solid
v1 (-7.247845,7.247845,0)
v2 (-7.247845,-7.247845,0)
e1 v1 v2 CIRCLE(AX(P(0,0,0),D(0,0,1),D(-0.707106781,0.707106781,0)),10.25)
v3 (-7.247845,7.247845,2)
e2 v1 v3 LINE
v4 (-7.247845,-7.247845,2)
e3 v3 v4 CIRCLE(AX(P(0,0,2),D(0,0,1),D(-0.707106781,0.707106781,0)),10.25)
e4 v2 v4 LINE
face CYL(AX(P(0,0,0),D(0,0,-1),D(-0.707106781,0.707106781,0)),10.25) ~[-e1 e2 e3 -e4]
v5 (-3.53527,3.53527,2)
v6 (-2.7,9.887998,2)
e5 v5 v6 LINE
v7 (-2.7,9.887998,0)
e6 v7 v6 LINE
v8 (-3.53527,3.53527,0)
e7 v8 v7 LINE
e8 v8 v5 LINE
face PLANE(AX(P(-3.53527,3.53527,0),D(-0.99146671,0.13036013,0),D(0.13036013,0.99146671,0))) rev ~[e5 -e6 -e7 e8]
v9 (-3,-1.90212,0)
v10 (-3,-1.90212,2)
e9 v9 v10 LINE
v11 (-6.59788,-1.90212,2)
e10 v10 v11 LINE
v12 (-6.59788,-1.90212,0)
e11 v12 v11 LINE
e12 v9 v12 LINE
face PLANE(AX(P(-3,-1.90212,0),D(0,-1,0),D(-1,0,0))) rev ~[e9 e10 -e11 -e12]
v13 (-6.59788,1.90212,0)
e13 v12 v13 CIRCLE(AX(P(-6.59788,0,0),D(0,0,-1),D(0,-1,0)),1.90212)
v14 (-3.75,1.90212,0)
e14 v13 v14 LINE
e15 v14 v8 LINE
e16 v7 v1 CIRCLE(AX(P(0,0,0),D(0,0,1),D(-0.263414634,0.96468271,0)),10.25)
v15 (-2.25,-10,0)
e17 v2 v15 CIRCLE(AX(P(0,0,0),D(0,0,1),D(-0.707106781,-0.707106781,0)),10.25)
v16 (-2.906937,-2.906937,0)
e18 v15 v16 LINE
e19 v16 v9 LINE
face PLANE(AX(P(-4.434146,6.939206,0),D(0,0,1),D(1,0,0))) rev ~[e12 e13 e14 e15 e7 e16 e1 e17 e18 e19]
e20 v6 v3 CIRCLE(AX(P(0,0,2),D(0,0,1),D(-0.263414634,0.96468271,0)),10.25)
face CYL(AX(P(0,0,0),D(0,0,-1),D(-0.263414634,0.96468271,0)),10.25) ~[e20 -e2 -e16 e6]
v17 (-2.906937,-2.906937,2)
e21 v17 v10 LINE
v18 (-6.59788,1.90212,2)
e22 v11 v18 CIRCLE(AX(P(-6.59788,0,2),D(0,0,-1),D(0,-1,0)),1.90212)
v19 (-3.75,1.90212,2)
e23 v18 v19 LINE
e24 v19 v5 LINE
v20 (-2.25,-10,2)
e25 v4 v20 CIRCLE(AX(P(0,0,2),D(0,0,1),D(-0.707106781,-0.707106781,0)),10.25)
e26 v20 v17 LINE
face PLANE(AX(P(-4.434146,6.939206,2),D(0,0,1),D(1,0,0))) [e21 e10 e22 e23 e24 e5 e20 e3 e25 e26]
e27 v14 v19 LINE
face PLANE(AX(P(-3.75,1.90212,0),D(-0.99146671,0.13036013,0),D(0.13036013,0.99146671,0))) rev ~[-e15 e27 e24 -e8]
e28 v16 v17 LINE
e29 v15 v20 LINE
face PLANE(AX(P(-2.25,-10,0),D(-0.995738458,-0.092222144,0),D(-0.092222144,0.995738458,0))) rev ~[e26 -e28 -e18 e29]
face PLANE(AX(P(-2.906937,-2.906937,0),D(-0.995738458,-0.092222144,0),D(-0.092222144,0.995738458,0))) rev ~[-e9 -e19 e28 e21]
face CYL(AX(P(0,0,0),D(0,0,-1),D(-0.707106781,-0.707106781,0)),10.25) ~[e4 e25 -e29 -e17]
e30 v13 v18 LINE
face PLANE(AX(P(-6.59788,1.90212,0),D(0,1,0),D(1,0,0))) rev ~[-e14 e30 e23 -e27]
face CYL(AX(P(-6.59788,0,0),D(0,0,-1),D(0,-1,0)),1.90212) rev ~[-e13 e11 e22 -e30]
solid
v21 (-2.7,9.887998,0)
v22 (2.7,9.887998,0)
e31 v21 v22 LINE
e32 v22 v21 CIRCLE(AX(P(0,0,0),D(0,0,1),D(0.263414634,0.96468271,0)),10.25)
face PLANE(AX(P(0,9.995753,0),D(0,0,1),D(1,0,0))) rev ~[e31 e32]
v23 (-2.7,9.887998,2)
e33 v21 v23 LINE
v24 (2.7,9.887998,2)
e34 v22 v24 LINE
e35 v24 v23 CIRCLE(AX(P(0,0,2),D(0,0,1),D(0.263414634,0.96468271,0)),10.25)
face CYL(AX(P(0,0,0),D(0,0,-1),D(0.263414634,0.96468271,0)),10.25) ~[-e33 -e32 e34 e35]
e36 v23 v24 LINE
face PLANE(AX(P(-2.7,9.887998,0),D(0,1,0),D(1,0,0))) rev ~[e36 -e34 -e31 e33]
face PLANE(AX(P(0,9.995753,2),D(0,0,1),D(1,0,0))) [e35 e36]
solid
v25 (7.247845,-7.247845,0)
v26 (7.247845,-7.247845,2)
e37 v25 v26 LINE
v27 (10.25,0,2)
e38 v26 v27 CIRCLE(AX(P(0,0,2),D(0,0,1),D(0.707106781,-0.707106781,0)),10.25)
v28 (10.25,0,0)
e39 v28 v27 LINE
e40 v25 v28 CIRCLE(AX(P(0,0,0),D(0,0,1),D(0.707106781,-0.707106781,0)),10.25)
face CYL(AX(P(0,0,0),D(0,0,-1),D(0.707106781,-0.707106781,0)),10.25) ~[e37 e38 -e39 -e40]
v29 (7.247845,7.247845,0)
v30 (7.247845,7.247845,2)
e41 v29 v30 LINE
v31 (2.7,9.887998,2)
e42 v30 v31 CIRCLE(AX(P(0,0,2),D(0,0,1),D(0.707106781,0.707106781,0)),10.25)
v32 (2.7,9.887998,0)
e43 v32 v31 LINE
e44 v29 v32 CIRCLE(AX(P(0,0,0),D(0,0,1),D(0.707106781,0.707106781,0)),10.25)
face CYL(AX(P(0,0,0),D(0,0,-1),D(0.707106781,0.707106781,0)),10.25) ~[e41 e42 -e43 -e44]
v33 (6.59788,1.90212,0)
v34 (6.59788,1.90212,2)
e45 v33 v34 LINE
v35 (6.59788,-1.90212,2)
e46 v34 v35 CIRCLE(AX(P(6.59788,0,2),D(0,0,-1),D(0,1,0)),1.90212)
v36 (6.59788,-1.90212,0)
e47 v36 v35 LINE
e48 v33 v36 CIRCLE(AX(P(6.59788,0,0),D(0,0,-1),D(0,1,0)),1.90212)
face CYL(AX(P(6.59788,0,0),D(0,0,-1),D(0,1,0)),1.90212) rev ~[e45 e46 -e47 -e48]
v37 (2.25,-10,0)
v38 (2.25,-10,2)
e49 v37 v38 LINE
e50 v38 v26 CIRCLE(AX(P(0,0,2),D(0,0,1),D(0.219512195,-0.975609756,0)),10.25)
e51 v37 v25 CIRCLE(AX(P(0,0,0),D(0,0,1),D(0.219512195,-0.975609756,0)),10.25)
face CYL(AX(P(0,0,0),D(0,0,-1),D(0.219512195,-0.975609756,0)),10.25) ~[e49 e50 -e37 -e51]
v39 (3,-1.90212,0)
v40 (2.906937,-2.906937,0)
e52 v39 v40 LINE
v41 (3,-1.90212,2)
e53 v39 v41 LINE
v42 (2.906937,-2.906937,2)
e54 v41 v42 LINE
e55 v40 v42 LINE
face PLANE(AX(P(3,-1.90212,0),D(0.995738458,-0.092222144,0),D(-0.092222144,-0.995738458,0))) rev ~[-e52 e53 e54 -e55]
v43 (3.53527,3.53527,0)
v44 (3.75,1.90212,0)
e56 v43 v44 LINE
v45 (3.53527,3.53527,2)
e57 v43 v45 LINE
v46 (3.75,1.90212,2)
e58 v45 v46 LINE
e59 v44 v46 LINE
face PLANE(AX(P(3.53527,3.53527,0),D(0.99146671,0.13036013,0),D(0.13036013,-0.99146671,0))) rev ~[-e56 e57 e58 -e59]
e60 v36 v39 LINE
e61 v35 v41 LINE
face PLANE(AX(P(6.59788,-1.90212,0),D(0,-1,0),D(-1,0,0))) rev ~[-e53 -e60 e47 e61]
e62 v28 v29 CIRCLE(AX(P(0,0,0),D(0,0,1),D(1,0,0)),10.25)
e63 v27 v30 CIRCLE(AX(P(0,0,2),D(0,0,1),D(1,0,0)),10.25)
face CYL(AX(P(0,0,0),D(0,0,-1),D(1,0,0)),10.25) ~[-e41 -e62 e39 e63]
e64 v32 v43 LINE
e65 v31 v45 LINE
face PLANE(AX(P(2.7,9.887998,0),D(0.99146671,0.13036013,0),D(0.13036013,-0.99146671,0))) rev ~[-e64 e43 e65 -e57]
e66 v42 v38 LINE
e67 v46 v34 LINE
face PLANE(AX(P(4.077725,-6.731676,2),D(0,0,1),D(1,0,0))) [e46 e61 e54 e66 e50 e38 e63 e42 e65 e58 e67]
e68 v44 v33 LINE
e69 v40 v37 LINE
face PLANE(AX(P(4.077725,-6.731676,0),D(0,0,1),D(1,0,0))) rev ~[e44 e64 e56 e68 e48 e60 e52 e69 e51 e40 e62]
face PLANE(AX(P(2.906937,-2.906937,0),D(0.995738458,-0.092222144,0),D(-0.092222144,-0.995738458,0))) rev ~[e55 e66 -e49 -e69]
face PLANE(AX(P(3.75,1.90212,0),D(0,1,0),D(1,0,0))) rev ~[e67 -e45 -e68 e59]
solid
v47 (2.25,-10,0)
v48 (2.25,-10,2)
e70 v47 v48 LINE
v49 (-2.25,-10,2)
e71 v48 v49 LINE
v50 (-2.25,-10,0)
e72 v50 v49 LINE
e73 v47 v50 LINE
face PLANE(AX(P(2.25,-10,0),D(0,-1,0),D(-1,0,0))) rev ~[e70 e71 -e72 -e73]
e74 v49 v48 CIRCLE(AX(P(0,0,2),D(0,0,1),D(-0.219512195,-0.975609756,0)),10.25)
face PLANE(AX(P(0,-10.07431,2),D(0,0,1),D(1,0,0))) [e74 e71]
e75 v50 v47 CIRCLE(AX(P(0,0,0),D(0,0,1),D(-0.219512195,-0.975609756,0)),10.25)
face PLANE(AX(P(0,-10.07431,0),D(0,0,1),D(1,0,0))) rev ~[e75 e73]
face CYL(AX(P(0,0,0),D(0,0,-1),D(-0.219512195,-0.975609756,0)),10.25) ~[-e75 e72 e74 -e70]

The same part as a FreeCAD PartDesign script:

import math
import FreeCAD as App
import Part
import Sketcher

doc = App.newDocument("Part")
body = doc.addObject("PartDesign::Body", "Body")

# Sketch on XY plane
sketch1 = body.newObject("Sketcher::SketchObject", "Sketch")
sketch1.AttachmentSupport = (doc.getObject("XY_Plane"), [""])
sketch1.MapMode = "FlatFace"
sketch1.addGeometry([
    Part.ArcOfCircle(Part.Circle(App.Vector(0, 0, 0), App.Vector(0, 0, 1), 10.25), math.radians(-77.319617), math.radians(-45)),  # 0
    Part.ArcOfCircle(Part.Circle(App.Vector(0, 0, 0), App.Vector(0, 0, 1), 10.25), math.radians(-45), math.radians(0)),  # 1
    Part.ArcOfCircle(Part.Circle(App.Vector(0, 0, 0), App.Vector(0, 0, 1), 10.25), math.radians(0), math.radians(45)),  # 2
    Part.ArcOfCircle(Part.Circle(App.Vector(0, 0, 0), App.Vector(0, 0, 1), 10.25), math.radians(45), math.radians(74.727229)),  # 3
    Part.LineSegment(App.Vector(2.7, 9.887998, 0), App.Vector(3.53527, 3.53527, 0)),  # 4
    Part.LineSegment(App.Vector(3.53527, 3.53527, 0), App.Vector(3.75, 1.90212, 0)),  # 5
    Part.LineSegment(App.Vector(3.75, 1.90212, 0), App.Vector(6.59788, 1.90212, 0)),  # 6
    Part.ArcOfCircle(Part.Circle(App.Vector(6.59788, 0, 0), App.Vector(0, 0, 1), 1.90212), math.radians(-90), math.radians(90)),  # 7
    Part.LineSegment(App.Vector(6.59788, -1.90212, 0), App.Vector(3, -1.90212, 0)),  # 8
    Part.LineSegment(App.Vector(3, -1.90212, 0), App.Vector(2.906937, -2.906937, 0)),  # 9
    Part.LineSegment(App.Vector(2.906937, -2.906937, 0), App.Vector(2.25, -10, 0)),  # 10
], False)
sketch1.addConstraint([
    Sketcher.Constraint("Tangent", 0, 2, 1, 1),
    Sketcher.Constraint("Tangent", 1, 2, 2, 1),
    Sketcher.Constraint("Tangent", 2, 2, 3, 1),
    Sketcher.Constraint("Coincident", 3, 2, 4, 1),
    Sketcher.Constraint("Coincident", 4, 2, 5, 1),
    Sketcher.Constraint("Coincident", 5, 2, 6, 1),
    Sketcher.Constraint("Tangent", 6, 2, 7, 2),
    Sketcher.Constraint("Tangent", 7, 1, 8, 1),
    Sketcher.Constraint("Coincident", 8, 2, 9, 1),
    Sketcher.Constraint("Coincident", 9, 2, 10, 1),
    Sketcher.Constraint("Coincident", 10, 2, 0, 1),
    Sketcher.Constraint("Horizontal", 6),
    Sketcher.Constraint("Horizontal", 8),
    Sketcher.Constraint("Coincident", 0, 3, -1, 1),
    Sketcher.Constraint("Coincident", 2, 3, -1, 1),
    Sketcher.Constraint("Equal", 2, 3),
    Sketcher.Constraint("PointOnObject", 7, 3, -1),
    Sketcher.Constraint("PointOnObject", 1, 2, -1),
    Sketcher.Constraint("Parallel", 4, 5),
    Sketcher.Constraint("Parallel", 9, 10),
    Sketcher.Constraint("Vertical", 0, 2, 2, 2),
    Sketcher.Constraint("Radius", 0, 10.25),
    Sketcher.Constraint("DistanceX", -1, 1, 8, 2, 3.0),
    Sketcher.Constraint("DistanceY", 10, 2, -1, 1, 10.0),
    Sketcher.Constraint("DistanceX", -1, 1, 3, 2, 2.7),
    Sketcher.Constraint("DistanceX", -1, 1, 5, 2, 3.75),
    Sketcher.Constraint("Radius", 7, 1.90212),
    Sketcher.Constraint("DistanceX", 6, 1, 6, 2, 2.84788),
    Sketcher.Constraint("Distance", 10, 7.12342),
    Sketcher.Constraint("DistanceX", -1, 1, 4, 2, 3.53527),
    Sketcher.Constraint("DistanceX", -1, 1, 0, 2, 7.247845),
])
pad1 = body.newObject("PartDesign::Pad", "Pad")
pad1.Profile = sketch1
pad1.Length = 2
body2 = doc.addObject("PartDesign::Body", "Body001")

# Sketch on XY plane
sketch2 = body2.newObject("Sketcher::SketchObject", "Sketch001")
sketch2.AttachmentSupport = (doc.getObject("XY_Plane001"), [""])
sketch2.MapMode = "FlatFace"
sketch2.addGeometry([
    Part.LineSegment(App.Vector(-2.7, 9.887998, 0), App.Vector(2.7, 9.887998, 0)),
    Part.ArcOfCircle(Part.Circle(App.Vector(0, 0, 0), App.Vector(0, 0, 1), 10.25), math.radians(74.727229), math.radians(105.272771)),
], False)
sketch2.addConstraint([
    Sketcher.Constraint("Coincident", 0, 1, 1, 2),
    Sketcher.Constraint("Coincident", 1, 1, 0, 2),
    Sketcher.Constraint("Horizontal", 0),
    Sketcher.Constraint("Coincident", 1, 3, -1, 1),
    Sketcher.Constraint("Radius", 1, 10.25),
    Sketcher.Constraint("DistanceX", 0, 1, 0, 2, 5.4),
])
pad2 = body2.newObject("PartDesign::Pad", "Pad001")
pad2.Profile = sketch2
pad2.Length = 2
body3 = doc.addObject("PartDesign::Body", "Body002")

# Sketch on XY plane
sketch3 = body3.newObject("Sketcher::SketchObject", "Sketch002")
sketch3.AttachmentSupport = (doc.getObject("XY_Plane002"), [""])
sketch3.MapMode = "FlatFace"
sketch3.addGeometry([
    Part.LineSegment(App.Vector(-3.53527, 3.53527, 0), App.Vector(-2.7, 9.887998, 0)),  # 0
    Part.ArcOfCircle(Part.Circle(App.Vector(0, 0, 0), App.Vector(0, 0, 1), 10.25), math.radians(105.272771), math.radians(135)),  # 1
    Part.ArcOfCircle(Part.Circle(App.Vector(0, 0, 0), App.Vector(0, 0, 1), 10.25), math.radians(135), math.radians(225)),  # 2
    Part.ArcOfCircle(Part.Circle(App.Vector(0, 0, 0), App.Vector(0, 0, 1), 10.25), math.radians(-135), math.radians(-102.680383)),  # 3
    Part.LineSegment(App.Vector(-2.25, -10, 0), App.Vector(-2.906937, -2.906937, 0)),  # 4
    Part.LineSegment(App.Vector(-2.906937, -2.906937, 0), App.Vector(-3, -1.90212, 0)),  # 5
    Part.LineSegment(App.Vector(-3, -1.90212, 0), App.Vector(-6.59788, -1.90212, 0)),  # 6
    Part.ArcOfCircle(Part.Circle(App.Vector(-6.59788, 0, 0), App.Vector(0, 0, 1), 1.90212), math.radians(90), math.radians(270)),  # 7
    Part.LineSegment(App.Vector(-6.59788, 1.90212, 0), App.Vector(-3.75, 1.90212, 0)),  # 8
    Part.LineSegment(App.Vector(-3.75, 1.90212, 0), App.Vector(-3.53527, 3.53527, 0)),  # 9
], False)
sketch3.addConstraint([
    Sketcher.Constraint("Coincident", 0, 2, 1, 1),
    Sketcher.Constraint("Tangent", 1, 2, 2, 1),
    Sketcher.Constraint("Tangent", 2, 2, 3, 1),
    Sketcher.Constraint("Coincident", 3, 2, 4, 1),
    Sketcher.Constraint("Coincident", 4, 2, 5, 1),
    Sketcher.Constraint("Coincident", 5, 2, 6, 1),
    Sketcher.Constraint("Tangent", 6, 2, 7, 2),
    Sketcher.Constraint("Tangent", 7, 1, 8, 1),
    Sketcher.Constraint("Coincident", 8, 2, 9, 1),
    Sketcher.Constraint("Coincident", 9, 2, 0, 1),
    Sketcher.Constraint("Horizontal", 6),
    Sketcher.Constraint("Horizontal", 8),
    Sketcher.Constraint("Coincident", 1, 3, -1, 1),
    Sketcher.Constraint("Coincident", 3, 3, -1, 1),
    Sketcher.Constraint("PointOnObject", 7, 3, -1),
    Sketcher.Constraint("Parallel", 4, 5),
    Sketcher.Constraint("Parallel", 0, 9),
    Sketcher.Constraint("Vertical", 1, 2, 2, 2),
    Sketcher.Constraint("Radius", 1, 10.25),
    Sketcher.Constraint("DistanceY", 3, 2, -1, 1, 10.0),
    Sketcher.Constraint("DistanceX", 5, 2, -1, 1, 3.0),
    Sketcher.Constraint("DistanceX", 0, 2, -1, 1, 2.7),
    Sketcher.Constraint("DistanceX", 8, 2, -1, 1, 3.75),
    Sketcher.Constraint("Radius", 7, 1.90212),
    Sketcher.Constraint("DistanceX", 6, 2, 6, 1, 3.59788),
    Sketcher.Constraint("Distance", 4, 7.12342),
    Sketcher.Constraint("DistanceX", 9, 2, -1, 1, 3.53527),
    Sketcher.Constraint("DistanceY", 2, 2, 1, 2, 14.495689),
])
pad3 = body3.newObject("PartDesign::Pad", "Pad002")
pad3.Profile = sketch3
pad3.Length = 2
body4 = doc.addObject("PartDesign::Body", "Body003")

# Sketch on XY plane
sketch4 = body4.newObject("Sketcher::SketchObject", "Sketch003")
sketch4.AttachmentSupport = (doc.getObject("XY_Plane003"), [""])
sketch4.MapMode = "FlatFace"
sketch4.addGeometry([
    Part.ArcOfCircle(Part.Circle(App.Vector(0, 0, 0), App.Vector(0, 0, 1), 10.25), math.radians(-102.680383), math.radians(-77.319617)),
    Part.LineSegment(App.Vector(2.25, -10, 0), App.Vector(-2.25, -10, 0)),
], False)
sketch4.addConstraint([
    Sketcher.Constraint("Coincident", 0, 1, 1, 2),
    Sketcher.Constraint("Coincident", 1, 1, 0, 2),
    Sketcher.Constraint("Horizontal", 1),
    Sketcher.Constraint("Coincident", 0, 3, -1, 1),
    Sketcher.Constraint("Radius", 0, 10.25),
    Sketcher.Constraint("DistanceX", 1, 2, 1, 1, 4.5),
])
pad4 = body4.newObject("PartDesign::Pad", "Pad003")
pad4.Profile = sketch4
pad4.Length = 2

doc.recompute()
